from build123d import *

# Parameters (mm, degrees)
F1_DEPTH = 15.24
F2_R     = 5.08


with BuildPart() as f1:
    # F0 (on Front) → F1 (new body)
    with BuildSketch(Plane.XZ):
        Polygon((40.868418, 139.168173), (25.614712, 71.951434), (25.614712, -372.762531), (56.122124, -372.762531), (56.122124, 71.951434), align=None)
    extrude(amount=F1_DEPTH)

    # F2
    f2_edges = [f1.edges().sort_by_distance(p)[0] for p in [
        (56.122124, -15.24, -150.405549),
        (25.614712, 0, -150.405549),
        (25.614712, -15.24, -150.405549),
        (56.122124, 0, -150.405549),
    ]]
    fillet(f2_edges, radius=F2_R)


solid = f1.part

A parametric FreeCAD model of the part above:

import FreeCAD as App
import Part
import Sketcher

V = App.Vector
Q = App.Units.Quantity


def edges_at(feature, points):
    """Names of the edges that pass closest to the given points."""
    edges = feature.Shape.Edges
    near = lambda p: min(range(len(edges)), key=lambda i: edges[i].distToShape(Part.Vertex(*p))[0])
    return sorted({f"Edge{near(p) + 1}" for p in points})


def add_polygon(sketch, points):
    """Adds a closed chain of lines whose ends are joined by coincident constraints."""
    first, n = sketch.GeometryCount, len(points)
    for a, b in zip(points, points[1:] + points[:1]):
        sketch.addGeometry(Part.LineSegment(App.Vector(*a, 0), App.Vector(*b, 0)), False)
    for i in range(n):
        sketch.addConstraint(Sketcher.Constraint("Coincident", first + i, 2, first + (i + 1) % n, 1))

doc = App.newDocument("Part")
body = doc.addObject("PartDesign::Body", "Body")

sketch1 = body.newObject("Sketcher::SketchObject", "Sketch")
sketch1.AttachmentSupport = (doc.getObject("XZ_Plane"), [""])
sketch1.MapMode = "FlatFace"
add_polygon(sketch1, [(41, 139), (26, 72), (26, -373), (56, -373), (56, 72)])
sketch1.addConstraint([
    Sketcher.Constraint("Vertical", 1),
    Sketcher.Constraint("Horizontal", 2),
    Sketcher.Constraint("Vertical", 3),
    Sketcher.Constraint("Horizontal", 0, 2, 3, 2),
    Sketcher.Constraint("Equal", 0, 4),
    Sketcher.Constraint("DistanceX", 2, 1, 2, 2, 30.507412),
    Sketcher.Constraint("DistanceY", 1, 2, 1, 1, 444.713965),
    Sketcher.Constraint("DistanceY", 1, 2, -1, 1, 372.762531),
    Sketcher.Constraint("DistanceY", 0, 2, 4, 2, 67.216739),
    Sketcher.Constraint("DistanceX", -1, 1, 0, 2, 25.614712),
])
pad1 = body.newObject("PartDesign::Pad", "Pad")
pad1.Profile = sketch1
pad1.Length = Q("0.6 in")
doc.recompute()

fillet = body.newObject("PartDesign::Fillet", "Fillet")
fillet.Base = (pad1, edges_at(pad1, [
    (56.122, -15.24, -150.406),
    (25.615, 0, -150.406),
    (25.615, -15.24, -150.406),
    (56.122, 0, -150.406),
]))
fillet.Radius = Q("0.2 in")

doc.recompute()
